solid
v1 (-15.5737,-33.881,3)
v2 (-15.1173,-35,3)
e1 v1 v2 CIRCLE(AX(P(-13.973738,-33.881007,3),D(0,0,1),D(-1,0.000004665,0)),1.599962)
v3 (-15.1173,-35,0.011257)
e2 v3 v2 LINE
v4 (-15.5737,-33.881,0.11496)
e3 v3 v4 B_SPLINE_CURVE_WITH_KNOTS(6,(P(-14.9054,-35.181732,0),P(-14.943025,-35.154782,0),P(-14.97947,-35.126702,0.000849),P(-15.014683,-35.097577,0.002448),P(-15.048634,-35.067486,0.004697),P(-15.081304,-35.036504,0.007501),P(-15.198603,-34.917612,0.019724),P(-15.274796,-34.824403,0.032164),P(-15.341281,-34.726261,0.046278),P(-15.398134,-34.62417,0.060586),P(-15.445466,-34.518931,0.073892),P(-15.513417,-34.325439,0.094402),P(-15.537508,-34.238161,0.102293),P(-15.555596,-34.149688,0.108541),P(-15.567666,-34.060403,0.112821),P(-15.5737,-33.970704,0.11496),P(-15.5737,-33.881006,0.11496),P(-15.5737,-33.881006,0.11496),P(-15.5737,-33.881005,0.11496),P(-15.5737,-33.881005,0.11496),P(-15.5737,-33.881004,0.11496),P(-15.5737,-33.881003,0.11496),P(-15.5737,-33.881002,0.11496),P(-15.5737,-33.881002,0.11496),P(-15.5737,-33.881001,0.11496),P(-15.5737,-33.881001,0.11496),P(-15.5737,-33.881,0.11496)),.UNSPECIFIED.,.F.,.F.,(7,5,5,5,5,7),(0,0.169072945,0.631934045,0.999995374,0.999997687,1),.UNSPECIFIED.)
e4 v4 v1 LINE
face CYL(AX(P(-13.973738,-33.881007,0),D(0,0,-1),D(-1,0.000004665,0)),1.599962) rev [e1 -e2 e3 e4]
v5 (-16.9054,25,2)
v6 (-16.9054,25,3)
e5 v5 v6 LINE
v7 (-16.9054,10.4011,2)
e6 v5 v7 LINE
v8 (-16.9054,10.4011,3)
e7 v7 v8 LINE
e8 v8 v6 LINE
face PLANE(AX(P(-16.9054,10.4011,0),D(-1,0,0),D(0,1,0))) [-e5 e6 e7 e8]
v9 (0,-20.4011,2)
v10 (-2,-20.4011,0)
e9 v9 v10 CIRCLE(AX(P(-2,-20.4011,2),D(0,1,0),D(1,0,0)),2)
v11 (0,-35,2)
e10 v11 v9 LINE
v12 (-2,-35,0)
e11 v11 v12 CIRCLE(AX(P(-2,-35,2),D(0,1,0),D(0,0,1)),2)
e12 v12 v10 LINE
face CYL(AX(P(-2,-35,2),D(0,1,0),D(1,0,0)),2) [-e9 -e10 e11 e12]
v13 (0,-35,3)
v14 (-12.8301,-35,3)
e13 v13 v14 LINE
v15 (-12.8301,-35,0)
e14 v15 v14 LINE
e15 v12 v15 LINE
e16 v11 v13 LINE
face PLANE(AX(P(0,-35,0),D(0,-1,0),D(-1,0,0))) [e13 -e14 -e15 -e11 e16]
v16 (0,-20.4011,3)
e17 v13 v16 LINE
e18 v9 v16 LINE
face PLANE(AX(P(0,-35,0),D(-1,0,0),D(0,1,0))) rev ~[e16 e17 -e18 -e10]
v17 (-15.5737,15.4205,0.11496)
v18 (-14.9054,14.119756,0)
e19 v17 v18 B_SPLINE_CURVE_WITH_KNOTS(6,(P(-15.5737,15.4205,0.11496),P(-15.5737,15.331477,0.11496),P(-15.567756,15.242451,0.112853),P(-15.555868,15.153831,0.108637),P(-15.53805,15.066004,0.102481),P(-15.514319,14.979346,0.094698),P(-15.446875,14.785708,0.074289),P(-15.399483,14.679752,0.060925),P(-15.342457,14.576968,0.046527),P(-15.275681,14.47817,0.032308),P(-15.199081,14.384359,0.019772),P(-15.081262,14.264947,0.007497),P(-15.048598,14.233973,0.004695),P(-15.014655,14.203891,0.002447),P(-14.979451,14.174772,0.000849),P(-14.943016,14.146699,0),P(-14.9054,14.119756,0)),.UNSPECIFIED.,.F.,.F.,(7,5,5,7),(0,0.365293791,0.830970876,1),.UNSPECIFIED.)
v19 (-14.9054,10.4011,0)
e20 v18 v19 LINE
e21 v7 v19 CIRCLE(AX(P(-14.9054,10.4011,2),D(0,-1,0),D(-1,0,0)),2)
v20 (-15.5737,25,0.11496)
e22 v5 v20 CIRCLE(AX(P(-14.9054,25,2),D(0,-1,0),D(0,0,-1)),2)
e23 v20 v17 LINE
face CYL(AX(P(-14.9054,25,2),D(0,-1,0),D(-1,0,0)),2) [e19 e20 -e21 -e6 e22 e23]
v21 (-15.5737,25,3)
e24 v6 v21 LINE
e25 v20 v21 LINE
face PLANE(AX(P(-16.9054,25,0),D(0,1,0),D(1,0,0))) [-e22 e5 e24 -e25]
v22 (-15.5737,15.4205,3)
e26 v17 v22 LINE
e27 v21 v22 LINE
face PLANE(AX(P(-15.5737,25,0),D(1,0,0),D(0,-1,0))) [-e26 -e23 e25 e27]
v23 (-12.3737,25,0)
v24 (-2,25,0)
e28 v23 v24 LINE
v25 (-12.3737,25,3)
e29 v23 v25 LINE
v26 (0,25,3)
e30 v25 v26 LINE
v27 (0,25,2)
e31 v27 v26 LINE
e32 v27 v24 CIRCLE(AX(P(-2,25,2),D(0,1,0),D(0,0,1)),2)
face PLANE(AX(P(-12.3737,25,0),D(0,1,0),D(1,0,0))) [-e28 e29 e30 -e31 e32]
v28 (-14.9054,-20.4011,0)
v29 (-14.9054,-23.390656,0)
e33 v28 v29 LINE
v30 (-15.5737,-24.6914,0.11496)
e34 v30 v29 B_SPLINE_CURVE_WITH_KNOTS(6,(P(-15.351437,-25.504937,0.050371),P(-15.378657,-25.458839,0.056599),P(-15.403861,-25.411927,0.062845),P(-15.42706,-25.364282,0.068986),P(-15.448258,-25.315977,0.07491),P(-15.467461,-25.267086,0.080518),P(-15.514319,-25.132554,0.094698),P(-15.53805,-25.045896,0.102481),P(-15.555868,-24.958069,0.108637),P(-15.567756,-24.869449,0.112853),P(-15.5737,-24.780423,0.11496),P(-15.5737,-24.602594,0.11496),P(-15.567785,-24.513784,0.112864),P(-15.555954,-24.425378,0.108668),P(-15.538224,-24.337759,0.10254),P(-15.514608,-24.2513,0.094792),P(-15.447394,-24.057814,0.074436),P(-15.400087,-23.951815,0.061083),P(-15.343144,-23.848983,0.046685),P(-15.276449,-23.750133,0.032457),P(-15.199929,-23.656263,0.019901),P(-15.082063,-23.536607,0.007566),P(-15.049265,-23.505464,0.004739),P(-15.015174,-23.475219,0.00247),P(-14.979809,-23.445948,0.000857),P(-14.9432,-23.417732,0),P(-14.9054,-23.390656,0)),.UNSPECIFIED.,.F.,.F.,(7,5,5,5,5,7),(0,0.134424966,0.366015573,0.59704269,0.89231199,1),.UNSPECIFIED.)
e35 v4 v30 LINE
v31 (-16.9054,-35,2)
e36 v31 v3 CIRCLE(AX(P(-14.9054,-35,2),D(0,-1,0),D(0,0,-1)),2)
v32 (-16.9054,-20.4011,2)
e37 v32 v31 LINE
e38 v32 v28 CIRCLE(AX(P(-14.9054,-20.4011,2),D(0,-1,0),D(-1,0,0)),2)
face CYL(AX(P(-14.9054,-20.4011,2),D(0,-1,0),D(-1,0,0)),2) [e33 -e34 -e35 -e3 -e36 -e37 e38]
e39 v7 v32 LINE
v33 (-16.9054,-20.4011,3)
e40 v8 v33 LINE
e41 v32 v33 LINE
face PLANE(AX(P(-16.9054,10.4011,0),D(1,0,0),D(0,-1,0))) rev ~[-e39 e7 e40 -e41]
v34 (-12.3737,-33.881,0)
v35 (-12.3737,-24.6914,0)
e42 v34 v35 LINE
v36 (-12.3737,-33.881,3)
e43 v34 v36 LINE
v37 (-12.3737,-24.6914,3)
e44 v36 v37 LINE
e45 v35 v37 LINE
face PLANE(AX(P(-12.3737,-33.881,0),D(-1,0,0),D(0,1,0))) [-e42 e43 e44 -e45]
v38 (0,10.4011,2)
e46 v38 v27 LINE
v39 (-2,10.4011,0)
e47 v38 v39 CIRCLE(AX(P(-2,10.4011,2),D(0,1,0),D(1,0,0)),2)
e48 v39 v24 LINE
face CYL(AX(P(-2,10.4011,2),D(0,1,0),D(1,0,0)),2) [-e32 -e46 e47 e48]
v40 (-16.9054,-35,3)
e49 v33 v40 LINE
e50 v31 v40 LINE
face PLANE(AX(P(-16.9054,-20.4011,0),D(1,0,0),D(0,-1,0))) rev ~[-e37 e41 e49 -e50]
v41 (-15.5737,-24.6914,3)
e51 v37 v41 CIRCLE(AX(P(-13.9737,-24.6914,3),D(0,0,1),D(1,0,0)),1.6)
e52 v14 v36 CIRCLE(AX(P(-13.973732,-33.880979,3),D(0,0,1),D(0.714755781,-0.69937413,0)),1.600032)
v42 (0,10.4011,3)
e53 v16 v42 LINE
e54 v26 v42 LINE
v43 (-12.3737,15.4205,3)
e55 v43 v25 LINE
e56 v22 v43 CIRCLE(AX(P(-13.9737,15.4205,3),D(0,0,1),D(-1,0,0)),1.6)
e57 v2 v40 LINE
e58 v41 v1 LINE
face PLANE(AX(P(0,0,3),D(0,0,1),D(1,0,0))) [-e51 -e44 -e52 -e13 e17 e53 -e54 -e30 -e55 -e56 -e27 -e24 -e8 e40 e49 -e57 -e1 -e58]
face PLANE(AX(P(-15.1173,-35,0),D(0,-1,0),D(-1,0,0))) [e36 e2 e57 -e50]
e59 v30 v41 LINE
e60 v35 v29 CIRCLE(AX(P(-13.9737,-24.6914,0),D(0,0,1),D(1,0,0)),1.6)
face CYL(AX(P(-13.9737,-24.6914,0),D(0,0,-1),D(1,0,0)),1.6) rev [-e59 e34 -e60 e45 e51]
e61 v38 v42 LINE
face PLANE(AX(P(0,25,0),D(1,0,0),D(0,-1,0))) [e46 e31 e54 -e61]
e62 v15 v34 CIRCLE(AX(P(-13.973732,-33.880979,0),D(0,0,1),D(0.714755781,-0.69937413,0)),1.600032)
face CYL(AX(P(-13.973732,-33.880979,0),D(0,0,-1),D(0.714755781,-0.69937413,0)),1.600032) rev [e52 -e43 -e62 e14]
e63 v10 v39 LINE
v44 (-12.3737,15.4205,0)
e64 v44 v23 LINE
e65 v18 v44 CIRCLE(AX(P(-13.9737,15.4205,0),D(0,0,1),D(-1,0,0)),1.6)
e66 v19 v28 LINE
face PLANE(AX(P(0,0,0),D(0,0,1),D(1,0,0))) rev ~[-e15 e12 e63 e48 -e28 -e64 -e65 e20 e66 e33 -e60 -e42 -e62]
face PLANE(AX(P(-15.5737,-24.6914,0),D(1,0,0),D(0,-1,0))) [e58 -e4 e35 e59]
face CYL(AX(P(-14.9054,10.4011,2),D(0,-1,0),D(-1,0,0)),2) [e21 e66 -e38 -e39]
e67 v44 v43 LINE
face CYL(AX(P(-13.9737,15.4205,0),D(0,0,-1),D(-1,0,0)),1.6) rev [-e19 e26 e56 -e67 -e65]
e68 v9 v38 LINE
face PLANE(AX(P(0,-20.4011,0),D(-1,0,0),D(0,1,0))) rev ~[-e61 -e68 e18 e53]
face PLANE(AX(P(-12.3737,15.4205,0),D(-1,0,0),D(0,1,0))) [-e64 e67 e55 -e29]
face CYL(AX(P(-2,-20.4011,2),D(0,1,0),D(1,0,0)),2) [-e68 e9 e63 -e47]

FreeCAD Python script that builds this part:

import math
import FreeCAD as App
import Part
import Sketcher

V = App.Vector


def edges_at(feature, points):
    """Names of the edges that pass closest to the given points."""
    edges = feature.Shape.Edges
    near = lambda p: min(range(len(edges)), key=lambda i: edges[i].distToShape(Part.Vertex(*p))[0])
    return sorted({f"Edge{near(p) + 1}" for p in points})

doc = App.newDocument("Part")
body = doc.addObject("PartDesign::Body", "Body")

# Sketch on XY plane
sketch1 = body.newObject("Sketcher::SketchObject", "Sketch")
sketch1.AttachmentSupport = (doc.getObject("XY_Plane"), [""])
sketch1.MapMode = "FlatFace"
sketch1.addGeometry([
    Part.LineSegment(V(-16.9, 25, 0), V(-16.9, -35, 0)),  # 0
    Part.LineSegment(V(-16.9, -35, 0), V(-15.1, -35, 0)),  # 1
    Part.ArcOfCircle(Part.Circle(V(-14, -33.9, 0), V(0, 0, 1), 1.6), math.radians(180), math.radians(224)),  # 2
    Part.LineSegment(V(-15.6, -33.9, 0), V(-15.6, -24.7, 0)),  # 3
    Part.ArcOfCircle(Part.Circle(V(-14, -24.7, 0), V(0, 0, 1), 1.6), math.radians(0), math.radians(180)),  # 4
    Part.LineSegment(V(-12.4, -24.7, 0), V(-12.4, -33.9, 0)),  # 5
    Part.ArcOfCircle(Part.Circle(V(-14, -33.9, 0), V(0, 0, 1), 1.6), math.radians(-44), math.radians(0)),  # 6
    Part.LineSegment(V(-12.8, -35, 0), V(0, -35, 0)),  # 7
    Part.LineSegment(V(0, -35, 0), V(0, 25, 0)),  # 8
    Part.LineSegment(V(0, 25, 0), V(-12.4, 25, 0)),  # 9
    Part.LineSegment(V(-12.4, 25, 0), V(-12.4, 15.4, 0)),  # 10
    Part.ArcOfCircle(Part.Circle(V(-14, 15.4, 0), V(0, 0, 1), 1.6), math.radians(180), math.radians(360)),  # 11
    Part.LineSegment(V(-15.6, 15.4, 0), V(-15.6, 25, 0)),  # 12
    Part.LineSegment(V(-15.6, 25, 0), V(-16.9, 25, 0)),  # 13
], False)
sketch1.addConstraint([
    Sketcher.Constraint("Coincident", 0, 2, 1, 1),
    Sketcher.Constraint("Coincident", 1, 2, 2, 2),
    Sketcher.Constraint("Tangent", 2, 1, 3, 1),
    Sketcher.Constraint("Tangent", 3, 2, 4, 2),
    Sketcher.Constraint("Tangent", 4, 1, 5, 1),
    Sketcher.Constraint("Tangent", 5, 2, 6, 2),
    Sketcher.Constraint("Coincident", 6, 1, 7, 1),
    Sketcher.Constraint("Coincident", 7, 2, 8, 1),
    Sketcher.Constraint("Coincident", 8, 2, 9, 1),
    Sketcher.Constraint("Coincident", 9, 2, 10, 1),
    Sketcher.Constraint("Tangent", 10, 2, 11, 2),
    Sketcher.Constraint("Tangent", 11, 1, 12, 1),
    Sketcher.Constraint("Coincident", 12, 2, 13, 1),
    Sketcher.Constraint("Coincident", 13, 2, 0, 1),
    Sketcher.Constraint("Vertical", 0),
    Sketcher.Constraint("Horizontal", 1),
    Sketcher.Constraint("Vertical", 3),
    Sketcher.Constraint("Vertical", 5),
    Sketcher.Constraint("Horizontal", 7),
    Sketcher.Constraint("Vertical", 8),
    Sketcher.Constraint("Horizontal", 9),
    Sketcher.Constraint("Vertical", 10),
    Sketcher.Constraint("Vertical", 12),
    Sketcher.Constraint("Horizontal", 13),
    Sketcher.Constraint("Coincident", 6, 3, 2, 3),
    Sketcher.Constraint("Equal", 2, 4),
    Sketcher.Constraint("Equal", 6, 11),
    Sketcher.Constraint("PointOnObject", 7, 2, -2),
    Sketcher.Constraint("Horizontal", 1, 2, 6, 1),
    Sketcher.Constraint("Horizontal", 9, 2, 12, 2),
    Sketcher.Constraint("Vertical", 6, 3, 11, 3),
    Sketcher.Constraint("Radius", 2, 1.6),
    Sketcher.Constraint("DistanceY", 0, 2, 0, 1, 60.0),
    Sketcher.Constraint("DistanceY", 0, 2, -1, 1, 35.0),
    Sketcher.Constraint("DistanceX", 7, 1, 7, 2, 12.83),
    Sketcher.Constraint("DistanceX", 1, 1, 1, 2, 1.788),
    Sketcher.Constraint("DistanceX", 9, 2, 9, 1, 12.3737),
    Sketcher.Constraint("DistanceY", 3, 1, 3, 2, 9.1896),
    Sketcher.Constraint("DistanceY", 10, 2, 10, 1, 9.5795),
])
pad1 = body.newObject("PartDesign::Pad", "Pad")
pad1.Profile = sketch1
pad1.Length = 3
doc.recompute()

fillet = body.newObject("PartDesign::Fillet", "Fillet")
fillet.Base = (pad1, edges_at(pad1, [(0, -5, 0), (-16.905, -5, 0)]))
fillet.Radius = 2

doc.recompute()
